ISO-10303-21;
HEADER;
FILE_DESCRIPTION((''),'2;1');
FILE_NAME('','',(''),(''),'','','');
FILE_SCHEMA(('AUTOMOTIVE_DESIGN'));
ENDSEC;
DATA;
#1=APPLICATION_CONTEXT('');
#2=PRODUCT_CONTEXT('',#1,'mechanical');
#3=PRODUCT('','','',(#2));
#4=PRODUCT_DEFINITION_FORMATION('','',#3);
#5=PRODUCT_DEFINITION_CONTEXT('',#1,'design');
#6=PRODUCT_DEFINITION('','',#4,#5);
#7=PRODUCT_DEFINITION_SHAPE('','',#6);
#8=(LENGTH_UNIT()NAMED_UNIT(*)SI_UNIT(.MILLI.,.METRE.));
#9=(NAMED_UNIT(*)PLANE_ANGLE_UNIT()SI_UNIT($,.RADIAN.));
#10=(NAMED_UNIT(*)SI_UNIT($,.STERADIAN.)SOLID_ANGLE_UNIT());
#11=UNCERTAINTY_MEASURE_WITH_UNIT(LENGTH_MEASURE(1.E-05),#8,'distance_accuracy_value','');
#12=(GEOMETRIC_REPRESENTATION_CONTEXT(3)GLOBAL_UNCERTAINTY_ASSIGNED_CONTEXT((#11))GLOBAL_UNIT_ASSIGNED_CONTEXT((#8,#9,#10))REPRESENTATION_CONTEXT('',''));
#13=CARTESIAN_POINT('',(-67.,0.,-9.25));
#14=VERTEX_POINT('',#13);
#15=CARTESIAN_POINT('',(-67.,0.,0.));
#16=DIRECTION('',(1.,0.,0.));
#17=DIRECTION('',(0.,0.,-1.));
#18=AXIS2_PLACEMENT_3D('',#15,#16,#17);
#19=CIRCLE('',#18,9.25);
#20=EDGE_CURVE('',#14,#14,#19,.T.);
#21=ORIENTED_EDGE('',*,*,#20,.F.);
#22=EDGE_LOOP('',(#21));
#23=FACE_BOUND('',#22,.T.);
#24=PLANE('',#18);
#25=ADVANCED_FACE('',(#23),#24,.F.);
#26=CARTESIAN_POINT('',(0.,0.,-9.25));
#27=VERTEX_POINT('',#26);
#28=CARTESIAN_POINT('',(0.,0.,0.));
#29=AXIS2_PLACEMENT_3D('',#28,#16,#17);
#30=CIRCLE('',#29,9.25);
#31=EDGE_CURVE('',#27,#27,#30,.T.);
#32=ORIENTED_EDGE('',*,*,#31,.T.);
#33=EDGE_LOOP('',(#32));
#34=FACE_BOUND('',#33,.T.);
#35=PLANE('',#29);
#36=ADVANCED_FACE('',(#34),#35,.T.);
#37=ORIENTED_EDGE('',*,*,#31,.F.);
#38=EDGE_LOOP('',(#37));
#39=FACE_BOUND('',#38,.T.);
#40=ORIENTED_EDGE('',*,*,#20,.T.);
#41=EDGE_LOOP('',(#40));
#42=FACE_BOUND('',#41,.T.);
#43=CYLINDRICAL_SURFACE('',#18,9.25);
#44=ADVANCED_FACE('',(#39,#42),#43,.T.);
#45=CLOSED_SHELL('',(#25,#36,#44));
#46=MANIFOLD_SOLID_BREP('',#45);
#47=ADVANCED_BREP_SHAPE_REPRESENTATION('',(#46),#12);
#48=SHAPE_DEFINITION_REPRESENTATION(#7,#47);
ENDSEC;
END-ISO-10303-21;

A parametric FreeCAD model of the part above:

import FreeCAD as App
import Part
import Sketcher
from FreeCAD import Vector

doc = App.newDocument("Part")
body = doc.addObject("PartDesign::Body", "Body")

# Sketch on YZ plane
sketch1 = body.newObject("Sketcher::SketchObject", "Sketch")
sketch1.AttachmentSupport = (doc.getObject("YZ_Plane"), [""])
sketch1.MapMode = "FlatFace"
sketch1.addGeometry(Part.Circle(Vector(0, 0, 0), Vector(0, 0, 1), 9.25), False)
sketch1.addConstraint([
    Sketcher.Constraint("Coincident", 0, 3, -1, 1),
    Sketcher.Constraint("Diameter", 0, 18.5),
])
pad1 = body.newObject("PartDesign::Pad", "Pad")
pad1.Profile = sketch1
pad1.Length = 67
pad1.Reversed = True

doc.recompute()
